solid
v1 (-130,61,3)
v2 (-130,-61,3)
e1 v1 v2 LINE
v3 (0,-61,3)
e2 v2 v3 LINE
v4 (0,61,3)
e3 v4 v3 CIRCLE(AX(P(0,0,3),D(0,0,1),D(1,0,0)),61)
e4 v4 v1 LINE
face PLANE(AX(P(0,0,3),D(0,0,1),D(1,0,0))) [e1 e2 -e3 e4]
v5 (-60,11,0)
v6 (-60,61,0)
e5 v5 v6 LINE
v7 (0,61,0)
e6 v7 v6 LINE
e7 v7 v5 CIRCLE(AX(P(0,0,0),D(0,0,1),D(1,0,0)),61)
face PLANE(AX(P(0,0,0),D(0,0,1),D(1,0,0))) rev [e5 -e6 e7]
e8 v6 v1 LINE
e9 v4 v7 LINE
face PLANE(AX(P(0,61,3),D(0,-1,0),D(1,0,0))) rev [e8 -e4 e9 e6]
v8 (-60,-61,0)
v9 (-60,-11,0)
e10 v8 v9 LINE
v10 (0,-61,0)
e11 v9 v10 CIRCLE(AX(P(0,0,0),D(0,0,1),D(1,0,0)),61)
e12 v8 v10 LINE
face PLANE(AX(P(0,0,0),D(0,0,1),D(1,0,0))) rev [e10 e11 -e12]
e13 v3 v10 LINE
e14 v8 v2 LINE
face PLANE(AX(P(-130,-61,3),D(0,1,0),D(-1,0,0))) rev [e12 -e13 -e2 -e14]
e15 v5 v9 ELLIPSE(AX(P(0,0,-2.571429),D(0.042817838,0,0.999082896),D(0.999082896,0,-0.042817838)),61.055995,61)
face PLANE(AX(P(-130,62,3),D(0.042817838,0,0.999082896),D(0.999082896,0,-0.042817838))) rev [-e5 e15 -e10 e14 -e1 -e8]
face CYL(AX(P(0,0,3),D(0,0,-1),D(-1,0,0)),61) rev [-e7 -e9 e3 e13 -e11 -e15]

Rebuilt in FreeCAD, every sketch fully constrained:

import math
import FreeCAD as App
import Part
import Sketcher


def add_polygon(sketch, points):
    """Adds a closed chain of lines whose ends are joined by coincident constraints."""
    first, n = sketch.GeometryCount, len(points)
    for a, b in zip(points, points[1:] + points[:1]):
        sketch.addGeometry(Part.LineSegment(App.Vector(*a, 0), App.Vector(*b, 0)), False)
    for i in range(n):
        sketch.addConstraint(Sketcher.Constraint("Coincident", first + i, 2, first + (i + 1) % n, 1))

doc = App.newDocument("Part")
body = doc.addObject("PartDesign::Body", "Body")

sketch1 = body.newObject("Sketcher::SketchObject", "Sketch")
sketch1.AttachmentSupport = (doc.getObject("XY_Plane"), [""])
sketch1.MapMode = "FlatFace"
sketch1.addGeometry([
    Part.LineSegment(App.Vector(0, 61, 0), App.Vector(-130, 61, 0)),
    Part.LineSegment(App.Vector(-130, 61, 0), App.Vector(-130, -61, 0)),
    Part.LineSegment(App.Vector(-130, -61, 0), App.Vector(0, -61, 0)),
    Part.ArcOfCircle(Part.Circle(App.Vector(0, 0, 0), App.Vector(0, 0, 1), 61), math.radians(90), math.radians(270)),
], False)
sketch1.addConstraint([
    Sketcher.Constraint("Coincident", 0, 2, 1, 1),
    Sketcher.Constraint("Coincident", 1, 2, 2, 1),
    Sketcher.Constraint("Tangent", 2, 2, 3, 2),
    Sketcher.Constraint("Tangent", 3, 1, 0, 1),
    Sketcher.Constraint("Horizontal", 0),
    Sketcher.Constraint("Vertical", 1),
    Sketcher.Constraint("Horizontal", 2),
    Sketcher.Constraint("Coincident", 3, 3, -1, 1),
    Sketcher.Constraint("Radius", 3, 61.0),
    Sketcher.Constraint("DistanceX", 0, 2, 0, 1, 130.0),
])
pad1 = body.newObject("PartDesign::Pad", "Pad")
pad1.Profile = sketch1
pad1.Length = 3

sketch2 = body.newObject("Sketcher::SketchObject", "Sketch001")
sketch2.AttachmentSupport = (doc.getObject("XZ_Plane"), [""])
sketch2.MapMode = "FlatFace"
sketch2.AttachmentOffset = App.Placement(App.Vector(0, 0, 61), App.Rotation())
add_polygon(sketch2, [(-60, 0), (-130, 3), (-130, 0)])
sketch2.addConstraint([
    Sketcher.Constraint("Vertical", 1),
    Sketcher.Constraint("Horizontal", 2),
    Sketcher.Constraint("PointOnObject", 1, 2, -1),
    Sketcher.Constraint("DistanceX", 2, 1, 2, 2, 70.0),
    Sketcher.Constraint("DistanceY", 1, 2, 1, 1, 3.0),
    Sketcher.Constraint("DistanceX", 0, 2, -1, 1, 130.0),
])
pocket1 = body.newObject("PartDesign::Pocket", "Pocket")
pocket1.Profile = sketch2
pocket1.Length = 123

doc.recompute()
